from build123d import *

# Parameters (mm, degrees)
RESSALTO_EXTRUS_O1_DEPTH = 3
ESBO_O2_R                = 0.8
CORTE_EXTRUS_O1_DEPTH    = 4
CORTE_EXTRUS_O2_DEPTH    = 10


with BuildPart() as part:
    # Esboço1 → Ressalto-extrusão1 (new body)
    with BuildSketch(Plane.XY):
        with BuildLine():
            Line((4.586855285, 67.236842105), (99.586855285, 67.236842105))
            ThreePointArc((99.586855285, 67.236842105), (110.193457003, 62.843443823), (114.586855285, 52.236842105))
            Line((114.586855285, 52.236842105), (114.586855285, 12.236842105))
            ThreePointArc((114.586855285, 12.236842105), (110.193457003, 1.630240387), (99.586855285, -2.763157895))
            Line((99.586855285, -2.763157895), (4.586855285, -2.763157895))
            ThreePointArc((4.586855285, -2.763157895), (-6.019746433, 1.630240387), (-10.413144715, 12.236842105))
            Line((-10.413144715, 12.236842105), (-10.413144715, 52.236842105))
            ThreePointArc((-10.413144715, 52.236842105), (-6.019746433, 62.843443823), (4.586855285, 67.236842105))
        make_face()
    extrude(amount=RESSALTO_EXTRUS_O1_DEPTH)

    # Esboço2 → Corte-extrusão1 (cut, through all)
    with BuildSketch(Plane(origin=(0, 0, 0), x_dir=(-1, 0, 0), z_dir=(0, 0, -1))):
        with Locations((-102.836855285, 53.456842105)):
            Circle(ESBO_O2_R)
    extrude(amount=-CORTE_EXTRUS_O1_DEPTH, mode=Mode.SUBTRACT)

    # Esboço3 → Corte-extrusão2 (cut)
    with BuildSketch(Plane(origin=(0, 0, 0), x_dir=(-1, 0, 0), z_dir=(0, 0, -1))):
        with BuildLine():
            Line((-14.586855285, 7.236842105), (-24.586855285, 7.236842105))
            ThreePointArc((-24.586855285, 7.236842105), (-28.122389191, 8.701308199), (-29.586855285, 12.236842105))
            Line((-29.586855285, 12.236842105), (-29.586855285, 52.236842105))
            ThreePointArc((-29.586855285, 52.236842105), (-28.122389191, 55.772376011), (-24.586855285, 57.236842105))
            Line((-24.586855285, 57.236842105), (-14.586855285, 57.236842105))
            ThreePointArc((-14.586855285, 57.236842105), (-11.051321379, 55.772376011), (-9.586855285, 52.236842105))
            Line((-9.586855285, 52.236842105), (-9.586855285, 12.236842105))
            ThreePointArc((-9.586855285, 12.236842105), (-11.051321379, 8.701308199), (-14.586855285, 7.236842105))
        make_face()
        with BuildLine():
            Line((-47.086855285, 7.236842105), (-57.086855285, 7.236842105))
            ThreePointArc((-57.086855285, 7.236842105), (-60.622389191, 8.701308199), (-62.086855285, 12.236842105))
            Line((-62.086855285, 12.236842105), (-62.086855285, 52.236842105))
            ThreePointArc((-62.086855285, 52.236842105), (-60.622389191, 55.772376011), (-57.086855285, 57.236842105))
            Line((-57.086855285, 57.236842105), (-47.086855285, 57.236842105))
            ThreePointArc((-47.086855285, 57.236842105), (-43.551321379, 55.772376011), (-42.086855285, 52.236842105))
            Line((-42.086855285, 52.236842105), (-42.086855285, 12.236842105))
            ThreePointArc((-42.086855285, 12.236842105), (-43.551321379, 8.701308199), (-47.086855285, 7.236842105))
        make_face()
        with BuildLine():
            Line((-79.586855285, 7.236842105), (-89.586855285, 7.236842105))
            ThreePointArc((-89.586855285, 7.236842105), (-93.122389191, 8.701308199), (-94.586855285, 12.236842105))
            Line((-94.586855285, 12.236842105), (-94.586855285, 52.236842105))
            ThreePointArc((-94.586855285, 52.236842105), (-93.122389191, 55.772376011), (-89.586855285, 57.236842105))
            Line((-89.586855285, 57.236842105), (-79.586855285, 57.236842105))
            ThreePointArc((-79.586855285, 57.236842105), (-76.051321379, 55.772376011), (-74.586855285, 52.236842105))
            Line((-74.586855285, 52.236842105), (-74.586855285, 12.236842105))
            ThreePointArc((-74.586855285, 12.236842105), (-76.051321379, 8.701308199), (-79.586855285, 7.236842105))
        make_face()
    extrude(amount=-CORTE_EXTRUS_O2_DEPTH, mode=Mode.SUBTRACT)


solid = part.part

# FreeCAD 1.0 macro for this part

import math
import FreeCAD as App
import Part
import Sketcher
from FreeCAD import Vector
Q = App.Units.Quantity

doc = App.newDocument("Part")
params = doc.addObject("Spreadsheet::Sheet", "Params")
for row, (alias, value) in enumerate([
    ("sketch1_radius", "15 mm"),
    ("sketch1_width", "95 mm"),
    ("sketch1_height", "40 mm"),
    ("pad1_length", "3 mm"),
    ("sketch2_diameter", "1.6 mm"),
    ("sketch3_radius", "5 mm"),
    ("sketch3_width", "10 mm"),
    ("sketch3_height", "40 mm"),
    ("pocket2_length", "10 mm"),
], start=1):
    params.set(f"A{row}", alias)
    params.set(f"B{row}", "=" + value)
    params.setAlias(f"B{row}", alias)

body = doc.addObject("PartDesign::Body", "Body")

# Sketch on XY plane
sketch1 = body.newObject("Sketcher::SketchObject", "Sketch")
sketch1.AttachmentSupport = (doc.getObject("XY_Plane"), [""])
sketch1.MapMode = "FlatFace"
sketch1.addGeometry(Part.LineSegment(Vector(100, 67, 0), Vector(5, 67, 0)), False)
sketch1.addGeometry(Part.ArcOfCircle(Part.Circle(Vector(5, 52, 0), Vector(0, 0, 1), 15), math.radians(90), math.radians(180)), False)
sketch1.addGeometry(Part.LineSegment(Vector(-10, 52, 0), Vector(-10, 12, 0)), False)
sketch1.addGeometry(Part.ArcOfCircle(Part.Circle(Vector(5, 12, 0), Vector(0, 0, 1), 15), math.radians(180), math.radians(270)), False)
sketch1.addGeometry(Part.LineSegment(Vector(5, -3, 0), Vector(100, -3, 0)), False)
sketch1.addGeometry(Part.ArcOfCircle(Part.Circle(Vector(100, 12, 0), Vector(0, 0, 1), 15), math.radians(-90), math.radians(0)), False)
sketch1.addGeometry(Part.LineSegment(Vector(115, 12, 0), Vector(115, 52, 0)), False)
sketch1.addGeometry(Part.ArcOfCircle(Part.Circle(Vector(100, 52, 0), Vector(0, 0, 1), 15), math.radians(0), math.radians(90)), False)
sketch1.addConstraint(Sketcher.Constraint("Tangent", 0, 2, 1, 1))
sketch1.addConstraint(Sketcher.Constraint("Tangent", 1, 2, 2, 1))
sketch1.addConstraint(Sketcher.Constraint("Tangent", 2, 2, 3, 1))
sketch1.addConstraint(Sketcher.Constraint("Tangent", 3, 2, 4, 1))
sketch1.addConstraint(Sketcher.Constraint("Tangent", 4, 2, 5, 1))
sketch1.addConstraint(Sketcher.Constraint("Tangent", 5, 2, 6, 1))
sketch1.addConstraint(Sketcher.Constraint("Tangent", 6, 2, 7, 1))
sketch1.addConstraint(Sketcher.Constraint("Tangent", 7, 2, 0, 1))
sketch1.addConstraint(Sketcher.Constraint("Horizontal", 0))
sketch1.addConstraint(Sketcher.Constraint("Vertical", 2))
sketch1.addConstraint(Sketcher.Constraint("Horizontal", 4))
sketch1.addConstraint(Sketcher.Constraint("Vertical", 6))
sketch1.addConstraint(Sketcher.Constraint("Equal", 1, 3))
sketch1.addConstraint(Sketcher.Constraint("Equal", 3, 5))
sketch1.addConstraint(Sketcher.Constraint("Equal", 5, 7))
sketch1.addConstraint(Sketcher.Constraint("Radius", 1, Q("15 mm")))
sketch1.addConstraint(Sketcher.Constraint("DistanceX", 0, 2, 0, 1, Q("95 mm")))
sketch1.addConstraint(Sketcher.Constraint("DistanceY", 2, 2, 2, 1, Q("40 mm")))
sketch1.addConstraint(Sketcher.Constraint("DistanceX", -1, 1, 1, 3, Q("4.586855 mm")))
sketch1.addConstraint(Sketcher.Constraint("DistanceY", -1, 1, 1, 3, Q("52.236842 mm")))
sketch1.setExpression("Constraints[15]", "Params.sketch1_radius")
sketch1.setExpression("Constraints[16]", "Params.sketch1_width")
sketch1.setExpression("Constraints[17]", "Params.sketch1_height")
pad1 = body.newObject("PartDesign::Pad", "Pad")
pad1.Profile = sketch1
pad1.setExpression("Length", "Params.pad1_length")

# Sketch on XY plane
sketch2 = body.newObject("Sketcher::SketchObject", "Sketch001")
sketch2.AttachmentSupport = (doc.getObject("XY_Plane"), [""])
sketch2.MapMode = "FlatFace"
sketch2.addGeometry(Part.Circle(Vector(102.8, 53.5, 0), Vector(0, 0, 1), 0.8), False)
sketch2.addConstraint(Sketcher.Constraint("Diameter", 0, Q("1.6 mm")))
sketch2.addConstraint(Sketcher.Constraint("DistanceX", -1, 1, 0, 3, Q("102.836855 mm")))
sketch2.addConstraint(Sketcher.Constraint("DistanceY", -1, 1, 0, 3, Q("53.456842 mm")))
sketch2.setExpression("Constraints[0]", "Params.sketch2_diameter")
pocket1 = body.newObject("PartDesign::Pocket", "Pocket")
pocket1.Profile = sketch2
pocket1.Type = "ThroughAll"
pocket1.Reversed = True

# Sketch on XY plane
sketch3 = body.newObject("Sketcher::SketchObject", "Sketch002")
sketch3.AttachmentSupport = (doc.getObject("XY_Plane"), [""])
sketch3.MapMode = "FlatFace"
sketch3.addGeometry(Part.LineSegment(Vector(25, 7, 0), Vector(15, 7, 0)), False)
sketch3.addGeometry(Part.ArcOfCircle(Part.Circle(Vector(15, 12, 0), Vector(0, 0, 1), 5), math.radians(180), math.radians(270)), False)
sketch3.addGeometry(Part.LineSegment(Vector(10, 12, 0), Vector(10, 52, 0)), False)
sketch3.addGeometry(Part.ArcOfCircle(Part.Circle(Vector(15, 52, 0), Vector(0, 0, 1), 5), math.radians(90), math.radians(180)), False)
sketch3.addGeometry(Part.LineSegment(Vector(15, 57, 0), Vector(25, 57, 0)), False)
sketch3.addGeometry(Part.ArcOfCircle(Part.Circle(Vector(25, 52, 0), Vector(0, 0, 1), 5), math.radians(0), math.radians(90)), False)
sketch3.addGeometry(Part.LineSegment(Vector(30, 52, 0), Vector(30, 12, 0)), False)
sketch3.addGeometry(Part.ArcOfCircle(Part.Circle(Vector(25, 12, 0), Vector(0, 0, 1), 5), math.radians(-90), math.radians(0)), False)
sketch3.addGeometry(Part.LineSegment(Vector(57, 7, 0), Vector(47, 7, 0)), False)
sketch3.addGeometry(Part.ArcOfCircle(Part.Circle(Vector(47, 12, 0), Vector(0, 0, 1), 5), math.radians(180), math.radians(270)), False)
sketch3.addGeometry(Part.LineSegment(Vector(42, 12, 0), Vector(42, 52, 0)), False)
sketch3.addGeometry(Part.ArcOfCircle(Part.Circle(Vector(47, 52, 0), Vector(0, 0, 1), 5), math.radians(90), math.radians(180)), False)
sketch3.addGeometry(Part.LineSegment(Vector(47, 57, 0), Vector(57, 57, 0)), False)
sketch3.addGeometry(Part.ArcOfCircle(Part.Circle(Vector(57, 52, 0), Vector(0, 0, 1), 5), math.radians(0), math.radians(90)), False)
sketch3.addGeometry(Part.LineSegment(Vector(62, 52, 0), Vector(62, 12, 0)), False)
sketch3.addGeometry(Part.ArcOfCircle(Part.Circle(Vector(57, 12, 0), Vector(0, 0, 1), 5), math.radians(-90), math.radians(0)), False)
sketch3.addGeometry(Part.LineSegment(Vector(90, 7, 0), Vector(80, 7, 0)), False)
sketch3.addGeometry(Part.ArcOfCircle(Part.Circle(Vector(80, 12, 0), Vector(0, 0, 1), 5), math.radians(180), math.radians(270)), False)
sketch3.addGeometry(Part.LineSegment(Vector(75, 12, 0), Vector(75, 52, 0)), False)
sketch3.addGeometry(Part.ArcOfCircle(Part.Circle(Vector(80, 52, 0), Vector(0, 0, 1), 5), math.radians(90), math.radians(180)), False)
sketch3.addGeometry(Part.LineSegment(Vector(80, 57, 0), Vector(90, 57, 0)), False)
sketch3.addGeometry(Part.ArcOfCircle(Part.Circle(Vector(90, 52, 0), Vector(0, 0, 1), 5), math.radians(0), math.radians(90)), False)
sketch3.addGeometry(Part.LineSegment(Vector(95, 52, 0), Vector(95, 12, 0)), False)
sketch3.addGeometry(Part.ArcOfCircle(Part.Circle(Vector(90, 12, 0), Vector(0, 0, 1), 5), math.radians(-90), math.radians(0)), False)
sketch3.addConstraint(Sketcher.Constraint("Tangent", 0, 2, 1, 2))
sketch3.addConstraint(Sketcher.Constraint("Tangent", 1, 1, 2, 1))
sketch3.addConstraint(Sketcher.Constraint("Tangent", 2, 2, 3, 2))
sketch3.addConstraint(Sketcher.Constraint("Tangent", 3, 1, 4, 1))
sketch3.addConstraint(Sketcher.Constraint("Tangent", 4, 2, 5, 2))
sketch3.addConstraint(Sketcher.Constraint("Tangent", 5, 1, 6, 1))
sketch3.addConstraint(Sketcher.Constraint("Tangent", 6, 2, 7, 2))
sketch3.addConstraint(Sketcher.Constraint("Tangent", 7, 1, 0, 1))
sketch3.addConstraint(Sketcher.Constraint("Tangent", 8, 2, 9, 2))
sketch3.addConstraint(Sketcher.Constraint("Tangent", 9, 1, 10, 1))
sketch3.addConstraint(Sketcher.Constraint("Tangent", 10, 2, 11, 2))
sketch3.addConstraint(Sketcher.Constraint("Tangent", 11, 1, 12, 1))
sketch3.addConstraint(Sketcher.Constraint("Tangent", 12, 2, 13, 2))
sketch3.addConstraint(Sketcher.Constraint("Tangent", 13, 1, 14, 1))
sketch3.addConstraint(Sketcher.Constraint("Tangent", 14, 2, 15, 2))
sketch3.addConstraint(Sketcher.Constraint("Tangent", 15, 1, 8, 1))
sketch3.addConstraint(Sketcher.Constraint("Tangent", 16, 2, 17, 2))
sketch3.addConstraint(Sketcher.Constraint("Tangent", 17, 1, 18, 1))
sketch3.addConstraint(Sketcher.Constraint("Tangent", 18, 2, 19, 2))
sketch3.addConstraint(Sketcher.Constraint("Tangent", 19, 1, 20, 1))
sketch3.addConstraint(Sketcher.Constraint("Tangent", 20, 2, 21, 2))
sketch3.addConstraint(Sketcher.Constraint("Tangent", 21, 1, 22, 1))
sketch3.addConstraint(Sketcher.Constraint("Tangent", 22, 2, 23, 2))
sketch3.addConstraint(Sketcher.Constraint("Tangent", 23, 1, 16, 1))
sketch3.addConstraint(Sketcher.Constraint("Horizontal", 0))
sketch3.addConstraint(Sketcher.Constraint("Vertical", 2))
sketch3.addConstraint(Sketcher.Constraint("Horizontal", 4))
sketch3.addConstraint(Sketcher.Constraint("Vertical", 6))
sketch3.addConstraint(Sketcher.Constraint("Horizontal", 8))
sketch3.addConstraint(Sketcher.Constraint("Vertical", 10))
sketch3.addConstraint(Sketcher.Constraint("Horizontal", 12))
sketch3.addConstraint(Sketcher.Constraint("Vertical", 14))
sketch3.addConstraint(Sketcher.Constraint("Horizontal", 16))
sketch3.addConstraint(Sketcher.Constraint("Vertical", 18))
sketch3.addConstraint(Sketcher.Constraint("Horizontal", 20))
sketch3.addConstraint(Sketcher.Constraint("Vertical", 22))
sketch3.addConstraint(Sketcher.Constraint("Equal", 1, 3))
sketch3.addConstraint(Sketcher.Constraint("Equal", 3, 5))
sketch3.addConstraint(Sketcher.Constraint("Equal", 5, 7))
sketch3.addConstraint(Sketcher.Constraint("Equal", 7, 9))
sketch3.addConstraint(Sketcher.Constraint("Equal", 9, 11))
sketch3.addConstraint(Sketcher.Constraint("Equal", 11, 13))
sketch3.addConstraint(Sketcher.Constraint("Equal", 13, 15))
sketch3.addConstraint(Sketcher.Constraint("Equal", 15, 17))
sketch3.addConstraint(Sketcher.Constraint("Equal", 17, 19))
sketch3.addConstraint(Sketcher.Constraint("Equal", 19, 21))
sketch3.addConstraint(Sketcher.Constraint("Equal", 21, 23))
sketch3.addConstraint(Sketcher.Constraint("Horizontal", 7, 3, 9, 3))
sketch3.addConstraint(Sketcher.Constraint("Horizontal", 5, 3, 11, 3))
sketch3.addConstraint(Sketcher.Constraint("Horizontal", 15, 3, 17, 3))
sketch3.addConstraint(Sketcher.Constraint("Horizontal", 13, 3, 19, 3))
sketch3.addConstraint(Sketcher.Constraint("Equal", 4, 8))
sketch3.addConstraint(Sketcher.Constraint("Equal", 12, 16))
sketch3.addConstraint(Sketcher.Constraint("Radius", 1, Q("5 mm")))
sketch3.addConstraint(Sketcher.Constraint("DistanceX", 0, 2, 0, 1, Q("10 mm")))
sketch3.addConstraint(Sketcher.Constraint("DistanceY", 2, 1, 2, 2, Q("40 mm")))
sketch3.addConstraint(Sketcher.Constraint("DistanceX", 7, 3, 17, 3, Q("55 mm")))
sketch3.addConstraint(Sketcher.Constraint("DistanceX", 7, 3, 9, 3, Q("22.5 mm")))
sketch3.addConstraint(Sketcher.Constraint("DistanceX", -1, 1, 1, 3, Q("14.586855 mm")))
sketch3.addConstraint(Sketcher.Constraint("DistanceY", -1, 1, 1, 3, Q("12.236842 mm")))
sketch3.setExpression("Constraints[53]", "Params.sketch3_radius")
sketch3.setExpression("Constraints[54]", "Params.sketch3_width")
sketch3.setExpression("Constraints[55]", "Params.sketch3_height")
pocket2 = body.newObject("PartDesign::Pocket", "Pocket001")
pocket2.Profile = sketch3
pocket2.setExpression("Length", "Params.pocket2_length")
pocket2.Reversed = True

doc.recompute()
